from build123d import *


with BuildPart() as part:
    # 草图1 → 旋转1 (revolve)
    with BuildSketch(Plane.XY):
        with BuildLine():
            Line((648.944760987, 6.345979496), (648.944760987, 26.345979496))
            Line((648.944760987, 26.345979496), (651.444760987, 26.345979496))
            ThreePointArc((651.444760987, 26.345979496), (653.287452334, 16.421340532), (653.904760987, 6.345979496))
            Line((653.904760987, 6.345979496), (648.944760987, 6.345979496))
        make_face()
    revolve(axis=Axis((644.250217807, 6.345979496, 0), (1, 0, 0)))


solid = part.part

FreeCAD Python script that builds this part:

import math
import FreeCAD as App
import Part
import Sketcher
from FreeCAD import Vector

doc = App.newDocument("Part")
body = doc.addObject("PartDesign::Body", "Body")

sketch1 = body.newObject("Sketcher::SketchObject", "Sketch")
sketch1.AttachmentSupport = (doc.getObject("XY_Plane"), [""])
sketch1.MapMode = "FlatFace"
sketch1.addGeometry([
    Part.LineSegment(Vector(648.9, 26.3, 0), Vector(648.9, 6.3, 0)),
    Part.LineSegment(Vector(648.9, 6.3, 0), Vector(653.9, 6.3, 0)),
    Part.ArcOfCircle(Part.Circle(Vector(571.4, 6.3, 0), Vector(0, 0, 1), 82.5), math.radians(0), math.radians(14.02)),
    Part.LineSegment(Vector(651.4, 26.3, 0), Vector(648.9, 26.3, 0)),
], False)
sketch1.addGeometry(Part.LineSegment(Vector(571.4, 6.3, 0), Vector(653.9, 6.3, 0)), True)
sketch1.addConstraint([
    Sketcher.Constraint("Coincident", 0, 2, 1, 1),
    Sketcher.Constraint("Coincident", 1, 2, 2, 1),
    Sketcher.Constraint("Coincident", 2, 2, 3, 1),
    Sketcher.Constraint("Coincident", 3, 2, 0, 1),
    Sketcher.Constraint("Vertical", 0),
    Sketcher.Constraint("Horizontal", 1),
    Sketcher.Constraint("Horizontal", 3),
    Sketcher.Constraint("Horizontal", 4),
    Sketcher.Constraint("Coincident", 4, 1, 2, 3),
    Sketcher.Constraint("Coincident", 4, 2, 1, 2),
    Sketcher.Constraint("DistanceY", 0, 2, 0, 1, 20.0),
    Sketcher.Constraint("DistanceX", 3, 2, 3, 1, 2.5),
    Sketcher.Constraint("DistanceX", 1, 1, 1, 2, 4.96),
    Sketcher.Constraint("DistanceY", -1, 1, 2, 3, 6.345979),
    Sketcher.Constraint("DistanceX", -1, 1, 0, 2, 648.944761),
])
revolution = body.newObject("PartDesign::Revolution", "Revolution")
revolution.Profile = sketch1
revolution.ReferenceAxis = (sketch1, ["Axis0"])
revolution.Angle = 360

doc.recompute()
